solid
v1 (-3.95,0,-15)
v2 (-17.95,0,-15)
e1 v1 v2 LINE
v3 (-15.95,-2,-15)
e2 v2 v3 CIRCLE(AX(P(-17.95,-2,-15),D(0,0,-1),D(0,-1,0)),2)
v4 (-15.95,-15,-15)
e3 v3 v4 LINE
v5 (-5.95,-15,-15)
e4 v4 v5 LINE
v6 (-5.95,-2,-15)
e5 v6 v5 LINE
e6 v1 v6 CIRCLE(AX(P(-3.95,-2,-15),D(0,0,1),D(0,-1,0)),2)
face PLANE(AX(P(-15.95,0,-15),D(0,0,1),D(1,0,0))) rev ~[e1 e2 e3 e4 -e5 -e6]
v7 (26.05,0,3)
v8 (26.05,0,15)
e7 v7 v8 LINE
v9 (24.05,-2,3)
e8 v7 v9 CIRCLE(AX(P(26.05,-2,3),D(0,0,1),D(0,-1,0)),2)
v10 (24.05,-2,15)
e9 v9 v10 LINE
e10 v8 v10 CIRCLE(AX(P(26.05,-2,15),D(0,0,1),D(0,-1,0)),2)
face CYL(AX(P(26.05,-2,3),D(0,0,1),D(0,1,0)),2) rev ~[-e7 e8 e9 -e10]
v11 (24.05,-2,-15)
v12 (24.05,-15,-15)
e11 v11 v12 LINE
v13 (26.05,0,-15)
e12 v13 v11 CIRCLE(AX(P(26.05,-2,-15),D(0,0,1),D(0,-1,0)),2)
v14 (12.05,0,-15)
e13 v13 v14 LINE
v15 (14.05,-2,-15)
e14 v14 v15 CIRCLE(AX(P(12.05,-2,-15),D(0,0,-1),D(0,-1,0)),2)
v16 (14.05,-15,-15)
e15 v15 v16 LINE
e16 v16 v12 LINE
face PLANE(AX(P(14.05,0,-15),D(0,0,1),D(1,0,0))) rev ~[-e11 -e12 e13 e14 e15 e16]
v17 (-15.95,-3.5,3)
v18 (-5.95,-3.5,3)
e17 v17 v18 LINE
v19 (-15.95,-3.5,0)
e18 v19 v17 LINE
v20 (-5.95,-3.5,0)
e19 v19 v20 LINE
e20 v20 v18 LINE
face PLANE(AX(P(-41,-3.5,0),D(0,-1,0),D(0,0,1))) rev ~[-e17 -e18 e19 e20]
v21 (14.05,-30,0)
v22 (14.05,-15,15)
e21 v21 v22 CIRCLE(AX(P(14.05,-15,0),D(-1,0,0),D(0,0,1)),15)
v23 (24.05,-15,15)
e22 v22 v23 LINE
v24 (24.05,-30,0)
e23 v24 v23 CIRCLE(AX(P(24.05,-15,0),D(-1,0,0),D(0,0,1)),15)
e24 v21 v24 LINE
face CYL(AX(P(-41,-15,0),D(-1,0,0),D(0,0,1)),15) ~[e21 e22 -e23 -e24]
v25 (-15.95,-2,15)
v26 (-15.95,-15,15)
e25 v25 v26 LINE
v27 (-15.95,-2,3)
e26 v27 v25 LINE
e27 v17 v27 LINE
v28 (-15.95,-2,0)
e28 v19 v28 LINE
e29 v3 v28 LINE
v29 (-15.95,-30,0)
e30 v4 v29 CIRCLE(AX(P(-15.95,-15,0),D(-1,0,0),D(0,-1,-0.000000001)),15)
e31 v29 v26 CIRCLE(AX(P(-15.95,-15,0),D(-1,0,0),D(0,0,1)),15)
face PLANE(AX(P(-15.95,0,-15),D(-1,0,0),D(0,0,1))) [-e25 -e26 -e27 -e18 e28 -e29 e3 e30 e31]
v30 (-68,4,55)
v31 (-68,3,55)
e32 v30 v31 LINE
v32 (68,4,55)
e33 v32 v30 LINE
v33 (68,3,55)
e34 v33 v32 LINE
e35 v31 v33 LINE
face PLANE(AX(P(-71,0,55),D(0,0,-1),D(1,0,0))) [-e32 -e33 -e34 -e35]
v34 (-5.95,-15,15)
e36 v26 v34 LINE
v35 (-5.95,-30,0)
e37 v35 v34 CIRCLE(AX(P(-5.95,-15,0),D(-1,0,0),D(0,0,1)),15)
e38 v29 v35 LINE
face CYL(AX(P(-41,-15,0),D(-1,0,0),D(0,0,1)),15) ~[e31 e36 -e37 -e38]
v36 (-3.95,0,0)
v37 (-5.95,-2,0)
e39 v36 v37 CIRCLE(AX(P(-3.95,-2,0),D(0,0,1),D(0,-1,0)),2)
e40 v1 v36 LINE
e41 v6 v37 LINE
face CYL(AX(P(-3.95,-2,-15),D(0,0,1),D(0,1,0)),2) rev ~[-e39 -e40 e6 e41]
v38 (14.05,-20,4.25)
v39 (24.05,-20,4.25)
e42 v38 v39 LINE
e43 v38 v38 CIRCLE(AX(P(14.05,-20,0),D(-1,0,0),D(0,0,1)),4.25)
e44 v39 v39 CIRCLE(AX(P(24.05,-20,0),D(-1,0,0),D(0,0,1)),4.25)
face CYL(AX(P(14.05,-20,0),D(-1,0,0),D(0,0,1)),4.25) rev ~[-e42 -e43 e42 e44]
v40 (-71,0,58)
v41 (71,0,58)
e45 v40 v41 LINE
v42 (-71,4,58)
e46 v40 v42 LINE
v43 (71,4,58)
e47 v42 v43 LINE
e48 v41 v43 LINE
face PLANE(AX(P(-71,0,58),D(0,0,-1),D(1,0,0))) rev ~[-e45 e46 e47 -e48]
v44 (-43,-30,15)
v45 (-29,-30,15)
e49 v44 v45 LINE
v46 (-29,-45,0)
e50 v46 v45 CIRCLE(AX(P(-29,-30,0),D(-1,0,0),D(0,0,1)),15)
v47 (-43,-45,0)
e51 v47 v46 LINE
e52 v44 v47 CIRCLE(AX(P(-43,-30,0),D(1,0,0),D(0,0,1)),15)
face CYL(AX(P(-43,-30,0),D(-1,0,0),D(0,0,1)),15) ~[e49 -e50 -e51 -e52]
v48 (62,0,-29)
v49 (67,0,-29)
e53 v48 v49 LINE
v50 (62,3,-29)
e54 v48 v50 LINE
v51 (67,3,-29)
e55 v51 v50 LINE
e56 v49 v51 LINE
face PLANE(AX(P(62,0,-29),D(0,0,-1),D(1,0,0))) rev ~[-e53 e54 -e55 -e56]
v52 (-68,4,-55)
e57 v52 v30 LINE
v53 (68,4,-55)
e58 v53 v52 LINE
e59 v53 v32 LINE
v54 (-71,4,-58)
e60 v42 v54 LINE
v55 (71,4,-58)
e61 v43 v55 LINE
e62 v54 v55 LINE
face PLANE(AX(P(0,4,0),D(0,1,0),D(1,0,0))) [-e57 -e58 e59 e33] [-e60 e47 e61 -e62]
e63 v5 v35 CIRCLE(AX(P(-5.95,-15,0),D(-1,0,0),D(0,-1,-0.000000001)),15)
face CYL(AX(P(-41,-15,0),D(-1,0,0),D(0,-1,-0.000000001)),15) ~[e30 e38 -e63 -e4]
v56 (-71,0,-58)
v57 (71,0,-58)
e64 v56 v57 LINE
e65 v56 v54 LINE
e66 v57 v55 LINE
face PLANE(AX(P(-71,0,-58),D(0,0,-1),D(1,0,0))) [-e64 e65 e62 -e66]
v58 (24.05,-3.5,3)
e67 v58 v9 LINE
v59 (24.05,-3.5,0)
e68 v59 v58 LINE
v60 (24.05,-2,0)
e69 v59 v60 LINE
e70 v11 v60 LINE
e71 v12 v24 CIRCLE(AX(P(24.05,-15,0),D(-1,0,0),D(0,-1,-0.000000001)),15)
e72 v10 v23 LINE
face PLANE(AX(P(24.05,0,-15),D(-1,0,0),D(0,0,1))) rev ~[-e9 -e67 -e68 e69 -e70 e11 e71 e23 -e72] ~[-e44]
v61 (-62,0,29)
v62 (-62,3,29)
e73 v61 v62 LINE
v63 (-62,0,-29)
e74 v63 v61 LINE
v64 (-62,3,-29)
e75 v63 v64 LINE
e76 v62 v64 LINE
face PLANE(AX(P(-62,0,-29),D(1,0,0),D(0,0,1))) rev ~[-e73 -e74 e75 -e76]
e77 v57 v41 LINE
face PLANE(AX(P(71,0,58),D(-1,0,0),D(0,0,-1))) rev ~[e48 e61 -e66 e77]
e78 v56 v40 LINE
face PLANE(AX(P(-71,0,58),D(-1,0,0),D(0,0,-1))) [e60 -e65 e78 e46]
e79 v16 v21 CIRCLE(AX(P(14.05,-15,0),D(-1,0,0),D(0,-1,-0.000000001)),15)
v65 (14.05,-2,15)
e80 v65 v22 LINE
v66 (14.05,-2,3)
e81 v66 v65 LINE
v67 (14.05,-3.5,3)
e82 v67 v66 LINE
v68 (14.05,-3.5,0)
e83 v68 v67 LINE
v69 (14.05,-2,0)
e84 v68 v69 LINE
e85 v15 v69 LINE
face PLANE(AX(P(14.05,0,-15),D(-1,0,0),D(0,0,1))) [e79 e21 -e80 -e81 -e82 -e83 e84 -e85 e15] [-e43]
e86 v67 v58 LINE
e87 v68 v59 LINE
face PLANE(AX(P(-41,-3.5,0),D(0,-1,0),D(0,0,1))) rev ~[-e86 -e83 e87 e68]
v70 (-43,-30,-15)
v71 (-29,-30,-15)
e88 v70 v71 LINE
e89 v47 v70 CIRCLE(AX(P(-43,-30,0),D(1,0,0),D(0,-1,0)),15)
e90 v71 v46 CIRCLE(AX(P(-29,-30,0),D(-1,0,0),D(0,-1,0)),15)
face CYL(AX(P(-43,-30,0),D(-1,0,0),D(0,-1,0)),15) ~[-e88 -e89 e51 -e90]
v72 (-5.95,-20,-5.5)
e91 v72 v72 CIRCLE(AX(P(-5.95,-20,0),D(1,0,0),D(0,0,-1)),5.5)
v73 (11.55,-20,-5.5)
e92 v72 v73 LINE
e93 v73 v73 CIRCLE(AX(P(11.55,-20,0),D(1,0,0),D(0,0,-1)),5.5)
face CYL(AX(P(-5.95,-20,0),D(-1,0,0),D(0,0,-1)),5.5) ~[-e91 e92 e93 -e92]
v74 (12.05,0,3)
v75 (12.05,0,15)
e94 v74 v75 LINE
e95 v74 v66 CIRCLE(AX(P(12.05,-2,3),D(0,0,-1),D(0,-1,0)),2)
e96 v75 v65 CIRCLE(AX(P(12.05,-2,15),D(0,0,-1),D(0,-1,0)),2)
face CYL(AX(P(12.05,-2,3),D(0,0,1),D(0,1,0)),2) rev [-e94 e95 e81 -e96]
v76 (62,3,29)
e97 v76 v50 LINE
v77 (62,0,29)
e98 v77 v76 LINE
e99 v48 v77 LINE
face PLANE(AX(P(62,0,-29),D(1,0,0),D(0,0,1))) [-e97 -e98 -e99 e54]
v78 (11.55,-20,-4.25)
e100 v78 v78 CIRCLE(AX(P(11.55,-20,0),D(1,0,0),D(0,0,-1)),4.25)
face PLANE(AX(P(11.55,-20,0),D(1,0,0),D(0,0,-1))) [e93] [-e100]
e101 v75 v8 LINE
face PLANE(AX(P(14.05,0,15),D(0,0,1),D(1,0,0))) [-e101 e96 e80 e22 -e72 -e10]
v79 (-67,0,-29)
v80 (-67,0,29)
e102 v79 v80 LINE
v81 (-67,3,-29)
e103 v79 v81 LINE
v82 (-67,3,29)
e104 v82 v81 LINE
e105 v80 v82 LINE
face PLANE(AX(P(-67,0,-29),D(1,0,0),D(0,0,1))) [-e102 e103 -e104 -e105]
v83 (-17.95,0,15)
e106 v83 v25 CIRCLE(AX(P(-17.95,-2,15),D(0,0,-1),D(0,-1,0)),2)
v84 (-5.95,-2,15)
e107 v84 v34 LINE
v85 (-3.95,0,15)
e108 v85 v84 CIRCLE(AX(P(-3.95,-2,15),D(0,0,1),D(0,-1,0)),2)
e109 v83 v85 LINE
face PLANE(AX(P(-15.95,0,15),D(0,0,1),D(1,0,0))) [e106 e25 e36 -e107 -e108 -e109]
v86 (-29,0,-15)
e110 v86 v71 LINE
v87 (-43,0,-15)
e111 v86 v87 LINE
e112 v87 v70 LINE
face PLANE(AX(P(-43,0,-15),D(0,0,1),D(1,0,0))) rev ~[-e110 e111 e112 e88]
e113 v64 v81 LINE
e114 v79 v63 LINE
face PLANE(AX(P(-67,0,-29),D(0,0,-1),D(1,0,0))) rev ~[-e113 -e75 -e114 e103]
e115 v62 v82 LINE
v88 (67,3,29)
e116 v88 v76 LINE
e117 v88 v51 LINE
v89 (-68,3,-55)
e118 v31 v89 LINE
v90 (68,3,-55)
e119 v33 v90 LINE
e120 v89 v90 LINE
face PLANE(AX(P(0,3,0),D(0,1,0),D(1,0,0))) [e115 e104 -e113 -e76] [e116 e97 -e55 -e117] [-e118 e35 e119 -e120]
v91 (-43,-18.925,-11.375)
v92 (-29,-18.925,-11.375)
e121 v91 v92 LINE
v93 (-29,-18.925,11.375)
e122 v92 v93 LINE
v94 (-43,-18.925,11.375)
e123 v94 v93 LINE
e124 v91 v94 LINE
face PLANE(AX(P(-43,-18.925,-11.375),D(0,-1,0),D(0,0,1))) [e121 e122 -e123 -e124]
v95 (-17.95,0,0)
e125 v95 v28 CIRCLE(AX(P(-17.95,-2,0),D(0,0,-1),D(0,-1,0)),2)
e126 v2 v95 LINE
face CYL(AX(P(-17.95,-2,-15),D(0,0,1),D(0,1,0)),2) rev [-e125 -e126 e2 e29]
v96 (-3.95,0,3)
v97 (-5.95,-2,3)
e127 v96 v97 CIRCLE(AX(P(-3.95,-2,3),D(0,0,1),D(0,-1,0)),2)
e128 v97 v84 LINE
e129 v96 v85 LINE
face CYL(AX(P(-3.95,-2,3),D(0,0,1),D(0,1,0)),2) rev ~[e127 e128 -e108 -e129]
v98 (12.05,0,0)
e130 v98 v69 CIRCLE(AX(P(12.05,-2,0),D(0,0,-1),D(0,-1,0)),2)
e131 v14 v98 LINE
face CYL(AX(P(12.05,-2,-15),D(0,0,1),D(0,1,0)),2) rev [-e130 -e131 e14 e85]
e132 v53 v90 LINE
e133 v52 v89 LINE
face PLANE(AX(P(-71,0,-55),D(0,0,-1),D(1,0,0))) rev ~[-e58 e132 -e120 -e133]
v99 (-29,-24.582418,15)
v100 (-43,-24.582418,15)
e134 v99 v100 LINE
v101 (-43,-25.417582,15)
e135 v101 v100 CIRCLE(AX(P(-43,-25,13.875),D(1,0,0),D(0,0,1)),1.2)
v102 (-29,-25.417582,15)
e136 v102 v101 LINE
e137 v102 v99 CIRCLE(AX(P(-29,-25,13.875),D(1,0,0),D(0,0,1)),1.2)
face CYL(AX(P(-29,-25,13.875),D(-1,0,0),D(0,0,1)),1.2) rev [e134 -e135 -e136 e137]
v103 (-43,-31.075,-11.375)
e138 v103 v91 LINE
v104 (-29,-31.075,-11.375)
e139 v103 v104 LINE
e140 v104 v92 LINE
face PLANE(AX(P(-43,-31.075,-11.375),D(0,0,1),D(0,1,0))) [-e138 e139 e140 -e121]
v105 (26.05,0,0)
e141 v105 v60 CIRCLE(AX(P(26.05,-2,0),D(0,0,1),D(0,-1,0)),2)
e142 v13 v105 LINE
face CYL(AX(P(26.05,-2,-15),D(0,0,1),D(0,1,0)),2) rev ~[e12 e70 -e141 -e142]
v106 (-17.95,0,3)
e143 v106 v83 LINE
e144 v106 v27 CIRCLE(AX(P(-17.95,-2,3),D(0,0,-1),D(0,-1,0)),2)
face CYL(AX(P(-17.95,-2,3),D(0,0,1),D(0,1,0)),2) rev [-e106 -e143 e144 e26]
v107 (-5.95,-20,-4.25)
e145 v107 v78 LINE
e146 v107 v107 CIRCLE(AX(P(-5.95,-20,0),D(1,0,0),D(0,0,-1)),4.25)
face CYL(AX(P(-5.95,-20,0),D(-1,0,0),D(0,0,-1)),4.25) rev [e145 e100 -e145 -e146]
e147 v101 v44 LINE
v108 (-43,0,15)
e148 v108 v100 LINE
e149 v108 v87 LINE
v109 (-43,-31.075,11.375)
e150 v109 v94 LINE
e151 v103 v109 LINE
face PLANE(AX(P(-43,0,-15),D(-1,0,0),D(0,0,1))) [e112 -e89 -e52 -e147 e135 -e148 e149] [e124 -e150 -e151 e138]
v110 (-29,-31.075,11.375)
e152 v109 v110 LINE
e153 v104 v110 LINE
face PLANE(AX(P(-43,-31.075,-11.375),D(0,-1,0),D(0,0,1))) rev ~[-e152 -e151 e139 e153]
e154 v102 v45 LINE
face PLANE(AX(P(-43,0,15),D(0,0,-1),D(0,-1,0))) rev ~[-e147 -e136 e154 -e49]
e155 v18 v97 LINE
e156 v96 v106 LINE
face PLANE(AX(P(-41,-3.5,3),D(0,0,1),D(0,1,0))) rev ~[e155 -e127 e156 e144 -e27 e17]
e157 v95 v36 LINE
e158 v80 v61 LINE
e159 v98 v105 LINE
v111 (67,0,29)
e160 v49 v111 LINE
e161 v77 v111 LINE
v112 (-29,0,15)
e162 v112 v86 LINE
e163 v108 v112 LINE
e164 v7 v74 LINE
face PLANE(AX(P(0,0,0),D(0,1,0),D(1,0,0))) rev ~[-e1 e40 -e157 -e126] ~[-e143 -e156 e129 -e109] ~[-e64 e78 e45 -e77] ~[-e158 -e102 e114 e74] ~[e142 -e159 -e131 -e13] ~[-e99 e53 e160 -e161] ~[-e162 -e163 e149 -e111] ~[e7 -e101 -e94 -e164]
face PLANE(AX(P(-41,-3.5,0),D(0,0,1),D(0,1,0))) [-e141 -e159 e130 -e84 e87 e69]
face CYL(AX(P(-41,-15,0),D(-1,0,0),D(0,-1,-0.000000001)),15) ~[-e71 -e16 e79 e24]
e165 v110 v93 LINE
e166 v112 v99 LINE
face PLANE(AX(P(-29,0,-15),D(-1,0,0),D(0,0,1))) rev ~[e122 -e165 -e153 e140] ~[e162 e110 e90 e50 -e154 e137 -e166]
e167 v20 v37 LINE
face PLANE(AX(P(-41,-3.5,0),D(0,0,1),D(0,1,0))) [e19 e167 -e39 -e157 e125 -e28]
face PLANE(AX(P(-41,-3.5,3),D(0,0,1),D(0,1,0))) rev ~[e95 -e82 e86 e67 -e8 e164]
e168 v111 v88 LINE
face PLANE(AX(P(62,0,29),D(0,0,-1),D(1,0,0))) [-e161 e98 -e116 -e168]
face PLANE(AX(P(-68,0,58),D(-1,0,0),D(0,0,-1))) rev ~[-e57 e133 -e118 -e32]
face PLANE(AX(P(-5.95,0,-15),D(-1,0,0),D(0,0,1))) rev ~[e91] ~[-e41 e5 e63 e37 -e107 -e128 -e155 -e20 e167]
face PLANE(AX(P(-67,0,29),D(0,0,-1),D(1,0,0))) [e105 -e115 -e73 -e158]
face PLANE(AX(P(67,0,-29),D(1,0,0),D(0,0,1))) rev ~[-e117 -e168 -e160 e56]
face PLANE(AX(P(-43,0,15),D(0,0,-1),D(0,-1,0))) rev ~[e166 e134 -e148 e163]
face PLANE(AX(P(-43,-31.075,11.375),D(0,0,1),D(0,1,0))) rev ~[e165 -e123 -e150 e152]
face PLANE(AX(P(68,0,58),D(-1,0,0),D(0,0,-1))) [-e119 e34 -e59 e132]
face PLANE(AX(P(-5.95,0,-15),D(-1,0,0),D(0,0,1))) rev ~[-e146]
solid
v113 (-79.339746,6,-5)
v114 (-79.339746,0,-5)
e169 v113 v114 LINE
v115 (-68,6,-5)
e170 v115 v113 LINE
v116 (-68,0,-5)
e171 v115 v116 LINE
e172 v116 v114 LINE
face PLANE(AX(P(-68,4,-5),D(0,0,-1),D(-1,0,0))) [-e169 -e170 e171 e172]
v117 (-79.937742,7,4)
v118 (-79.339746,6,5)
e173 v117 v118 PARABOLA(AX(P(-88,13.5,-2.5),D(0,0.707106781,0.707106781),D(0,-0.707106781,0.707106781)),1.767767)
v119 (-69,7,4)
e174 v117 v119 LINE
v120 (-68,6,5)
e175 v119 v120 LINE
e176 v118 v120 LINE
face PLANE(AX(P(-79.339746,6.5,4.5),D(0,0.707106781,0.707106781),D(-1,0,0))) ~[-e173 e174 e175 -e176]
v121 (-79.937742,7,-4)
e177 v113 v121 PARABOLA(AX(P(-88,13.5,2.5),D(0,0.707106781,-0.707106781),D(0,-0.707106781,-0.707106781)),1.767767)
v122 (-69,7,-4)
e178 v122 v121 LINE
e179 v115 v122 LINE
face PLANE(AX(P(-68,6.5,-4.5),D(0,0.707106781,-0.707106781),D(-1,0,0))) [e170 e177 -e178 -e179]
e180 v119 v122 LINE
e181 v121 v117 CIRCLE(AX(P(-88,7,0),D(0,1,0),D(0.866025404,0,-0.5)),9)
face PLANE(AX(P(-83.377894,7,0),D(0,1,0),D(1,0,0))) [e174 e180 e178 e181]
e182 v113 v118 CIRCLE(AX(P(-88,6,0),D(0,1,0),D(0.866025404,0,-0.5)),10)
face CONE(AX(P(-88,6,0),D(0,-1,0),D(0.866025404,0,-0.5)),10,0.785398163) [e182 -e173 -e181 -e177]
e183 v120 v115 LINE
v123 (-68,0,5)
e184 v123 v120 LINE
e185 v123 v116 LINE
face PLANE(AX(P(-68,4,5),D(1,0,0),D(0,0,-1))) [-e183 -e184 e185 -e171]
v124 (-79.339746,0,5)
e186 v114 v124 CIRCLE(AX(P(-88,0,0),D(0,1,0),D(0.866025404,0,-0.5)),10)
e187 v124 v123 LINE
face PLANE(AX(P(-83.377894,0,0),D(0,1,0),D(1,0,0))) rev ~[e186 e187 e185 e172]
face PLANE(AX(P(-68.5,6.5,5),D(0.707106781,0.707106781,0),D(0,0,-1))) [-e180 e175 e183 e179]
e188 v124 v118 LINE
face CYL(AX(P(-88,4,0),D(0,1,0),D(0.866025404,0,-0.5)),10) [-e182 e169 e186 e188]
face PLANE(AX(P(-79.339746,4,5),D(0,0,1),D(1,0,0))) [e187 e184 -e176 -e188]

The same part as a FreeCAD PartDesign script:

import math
import FreeCAD as App
import Part
import Sketcher
from FreeCAD import Vector
Q = App.Units.Quantity


def edges_at(feature, points):
    """Names of the edges that pass closest to the given points."""
    edges = feature.Shape.Edges
    near = lambda p: min(range(len(edges)), key=lambda i: edges[i].distToShape(Part.Vertex(*p))[0])
    return sorted({f"Edge{near(p) + 1}" for p in points})


def faces_at(feature, points):
    """Names of the faces that lie closest to the given points."""
    faces = feature.Shape.Faces
    near = lambda p: min(range(len(faces)), key=lambda i: faces[i].distToShape(Part.Vertex(*p))[0])
    return sorted({f"Face{near(p) + 1}" for p in points})

doc = App.newDocument("Part")
body = doc.addObject("PartDesign::Body", "Body")

sketch1 = body.newObject("Sketcher::SketchObject", "Sketch")
sketch1.AttachmentSupport = (doc.getObject("XZ_Plane"), [""])
sketch1.MapMode = "FlatFace"
sketch1.addGeometry(Part.LineSegment(Vector(-71, -58, 0), Vector(-71, 58, 0)), False)
sketch1.addGeometry(Part.LineSegment(Vector(-71, 58, 0), Vector(71, 58, 0)), False)
sketch1.addGeometry(Part.LineSegment(Vector(71, 58, 0), Vector(71, -58, 0)), False)
sketch1.addGeometry(Part.LineSegment(Vector(71, -58, 0), Vector(-71, -58, 0)), False)
sketch1.addConstraint(Sketcher.Constraint("Coincident", 0, 2, 1, 1))
sketch1.addConstraint(Sketcher.Constraint("Coincident", 1, 2, 2, 1))
sketch1.addConstraint(Sketcher.Constraint("Coincident", 2, 2, 3, 1))
sketch1.addConstraint(Sketcher.Constraint("Coincident", 3, 2, 0, 1))
sketch1.addConstraint(Sketcher.Constraint("Vertical", 0))
sketch1.addConstraint(Sketcher.Constraint("Horizontal", 1))
sketch1.addConstraint(Sketcher.Constraint("Vertical", 2))
sketch1.addConstraint(Sketcher.Constraint("Horizontal", 3))
sketch1.addConstraint(Sketcher.Constraint("Symmetric", 0, 2, 2, 2, -1, 1))
sketch1.addConstraint(Sketcher.Constraint("DistanceX", 1, 1, 1, 2, 142.0))
sketch1.addConstraint(Sketcher.Constraint("DistanceY", 0, 1, 0, 2, 116.0))
pad1 = body.newObject("PartDesign::Pad", "Pad")
pad1.Profile = sketch1
pad1.Length = 4
pad1.Reversed = True
doc.recompute()

thickness = body.newObject("PartDesign::Thickness", "Thickness")
thickness.Base = (pad1, faces_at(pad1, [(0, 4, 0)]))
thickness.Value = 3
thickness.Reversed = True
thickness.Join = "Intersection"

sketch2 = body.newObject("Sketcher::SketchObject", "Sketch001")
sketch2.AttachmentSupport = (doc.getObject("XZ_Plane"), [""])
sketch2.MapMode = "FlatFace"
sketch2.addGeometry(Part.LineSegment(Vector(-41, 15, 0), Vector(-41, -15, 0)), False)
sketch2.addGeometry(Part.LineSegment(Vector(-41, -15, 0), Vector(-31, -15, 0)), False)
sketch2.addGeometry(Part.LineSegment(Vector(-31, -15, 0), Vector(-31, 15, 0)), False)
sketch2.addGeometry(Part.LineSegment(Vector(-31, 15, 0), Vector(-41, 15, 0)), False)
sketch2.addGeometry(Part.LineSegment(Vector(14, 15, 0), Vector(14, -15, 0)), False)
sketch2.addGeometry(Part.LineSegment(Vector(14, -15, 0), Vector(24, -15, 0)), False)
sketch2.addGeometry(Part.LineSegment(Vector(24, -15, 0), Vector(24, 15, 0)), False)
sketch2.addGeometry(Part.LineSegment(Vector(24, 15, 0), Vector(14, 15, 0)), False)
sketch2.addGeometry(Part.LineSegment(Vector(-16, 15, 0), Vector(-16, -15, 0)), False)
sketch2.addGeometry(Part.LineSegment(Vector(-16, -15, 0), Vector(-6, -15, 0)), False)
sketch2.addGeometry(Part.LineSegment(Vector(-6, -15, 0), Vector(-6, 15, 0)), False)
sketch2.addGeometry(Part.LineSegment(Vector(-6, 15, 0), Vector(-16, 15, 0)), False)
sketch2.addConstraint(Sketcher.Constraint("Coincident", 0, 2, 1, 1))
sketch2.addConstraint(Sketcher.Constraint("Coincident", 1, 2, 2, 1))
sketch2.addConstraint(Sketcher.Constraint("Coincident", 2, 2, 3, 1))
sketch2.addConstraint(Sketcher.Constraint("Coincident", 3, 2, 0, 1))
sketch2.addConstraint(Sketcher.Constraint("Coincident", 4, 2, 5, 1))
sketch2.addConstraint(Sketcher.Constraint("Coincident", 5, 2, 6, 1))
sketch2.addConstraint(Sketcher.Constraint("Coincident", 6, 2, 7, 1))
sketch2.addConstraint(Sketcher.Constraint("Coincident", 7, 2, 4, 1))
sketch2.addConstraint(Sketcher.Constraint("Coincident", 8, 2, 9, 1))
sketch2.addConstraint(Sketcher.Constraint("Coincident", 9, 2, 10, 1))
sketch2.addConstraint(Sketcher.Constraint("Coincident", 10, 2, 11, 1))
sketch2.addConstraint(Sketcher.Constraint("Coincident", 11, 2, 8, 1))
sketch2.addConstraint(Sketcher.Constraint("Vertical", 0))
sketch2.addConstraint(Sketcher.Constraint("Horizontal", 1))
sketch2.addConstraint(Sketcher.Constraint("Vertical", 2))
sketch2.addConstraint(Sketcher.Constraint("Horizontal", 3))
sketch2.addConstraint(Sketcher.Constraint("Vertical", 4))
sketch2.addConstraint(Sketcher.Constraint("Horizontal", 5))
sketch2.addConstraint(Sketcher.Constraint("Vertical", 6))
sketch2.addConstraint(Sketcher.Constraint("Horizontal", 7))
sketch2.addConstraint(Sketcher.Constraint("Vertical", 8))
sketch2.addConstraint(Sketcher.Constraint("Horizontal", 9))
sketch2.addConstraint(Sketcher.Constraint("Vertical", 10))
sketch2.addConstraint(Sketcher.Constraint("Horizontal", 11))
sketch2.addConstraint(Sketcher.Constraint("Horizontal", 1, 2, 4, 2))
sketch2.addConstraint(Sketcher.Constraint("Horizontal", 3, 2, 6, 2))
sketch2.addConstraint(Sketcher.Constraint("Horizontal", 5, 2, 8, 2))
sketch2.addConstraint(Sketcher.Constraint("Horizontal", 7, 2, 10, 2))
sketch2.addConstraint(Sketcher.Constraint("Equal", 3, 5))
sketch2.addConstraint(Sketcher.Constraint("Equal", 7, 9))
sketch2.addConstraint(Sketcher.Constraint("DistanceX", 1, 1, 1, 2, 10.0))
sketch2.addConstraint(Sketcher.Constraint("DistanceY", 0, 2, 0, 1, 30.0))
sketch2.addConstraint(Sketcher.Constraint("DistanceX", 0, 2, -1, 1, 41.0))
sketch2.addConstraint(Sketcher.Constraint("DistanceY", 0, 2, -1, 1, 15.0))
sketch2.addConstraint(Sketcher.Constraint("DistanceX", 8, 2, 4, 2, 30.0))
sketch2.addConstraint(Sketcher.Constraint("DistanceX", -1, 1, 4, 2, 14.05))
pad2 = body.newObject("PartDesign::Pad", "Pad001")
pad2.Profile = sketch2
pad2.Length = 30

sketch3 = body.newObject("Sketcher::SketchObject", "Sketch002")
sketch3.AttachmentSupport = (doc.getObject("YZ_Plane"), [""])
sketch3.MapMode = "FlatFace"
sketch3.AttachmentOffset = App.Placement(Vector(0, 0, -41), App.Rotation())
sketch3.addGeometry(Part.ArcOfCircle(Part.Circle(Vector(-15, 0, 0), Vector(0, 0, 1), 15), math.radians(-180), math.radians(-90)), False)
sketch3.addGeometry(Part.LineSegment(Vector(-15, -15, 0), Vector(-30, -15, 0)), False)
sketch3.addGeometry(Part.LineSegment(Vector(-30, -15, 0), Vector(-30, 0, 0)), False)
sketch3.addGeometry(Part.ArcOfCircle(Part.Circle(Vector(-15, 0, 0), Vector(0, 0, 1), 15), math.radians(90), math.radians(180)), False)
sketch3.addGeometry(Part.LineSegment(Vector(-30, 0, 0), Vector(-30, 15, 0)), False)
sketch3.addGeometry(Part.LineSegment(Vector(-30, 15, 0), Vector(-15, 15, 0)), False)
sketch3.addConstraint(Sketcher.Constraint("Tangent", 0, 2, 1, 1))
sketch3.addConstraint(Sketcher.Constraint("Coincident", 1, 2, 2, 1))
sketch3.addConstraint(Sketcher.Constraint("Tangent", 2, 2, 0, 1))
sketch3.addConstraint(Sketcher.Constraint("Tangent", 3, 2, 4, 1))
sketch3.addConstraint(Sketcher.Constraint("Coincident", 4, 2, 5, 1))
sketch3.addConstraint(Sketcher.Constraint("Tangent", 5, 2, 3, 1))
sketch3.addConstraint(Sketcher.Constraint("Horizontal", 1))
sketch3.addConstraint(Sketcher.Constraint("Vertical", 2))
sketch3.addConstraint(Sketcher.Constraint("Vertical", 4))
sketch3.addConstraint(Sketcher.Constraint("Horizontal", 5))
sketch3.addConstraint(Sketcher.Constraint("Coincident", 3, 3, 0, 3))
sketch3.addConstraint(Sketcher.Constraint("Equal", 0, 3))
sketch3.addConstraint(Sketcher.Constraint("PointOnObject", 0, 3, -1))
sketch3.addConstraint(Sketcher.Constraint("Radius", 0, 15.0))
sketch3.addConstraint(Sketcher.Constraint("DistanceX", 0, 3, -1, 1, 15.0))
pocket1 = body.newObject("PartDesign::Pocket", "Pocket")
pocket1.Profile = sketch3
pocket1.Type = "ThroughAll"
pocket1.Midplane = True

sketch4 = body.newObject("Sketcher::SketchObject", "Sketch003")
sketch4.AttachmentSupport = (doc.getObject("YZ_Plane"), [""])
sketch4.MapMode = "FlatFace"
sketch4.AttachmentOffset = App.Placement(Vector(0, 0, -41), App.Rotation())
sketch4.addGeometry(Part.LineSegment(Vector(0, 0, 0), Vector(-3.5, 0, 0)), False)
sketch4.addGeometry(Part.LineSegment(Vector(-3.5, 0, 0), Vector(-3.5, 3, 0)), False)
sketch4.addGeometry(Part.LineSegment(Vector(-3.5, 3, 0), Vector(0, 3, 0)), False)
sketch4.addGeometry(Part.LineSegment(Vector(0, 3, 0), Vector(0, 0, 0)), False)
sketch4.addConstraint(Sketcher.Constraint("Coincident", 0, 2, 1, 1))
sketch4.addConstraint(Sketcher.Constraint("Coincident", 1, 2, 2, 1))
sketch4.addConstraint(Sketcher.Constraint("Coincident", 2, 2, 3, 1))
sketch4.addConstraint(Sketcher.Constraint("Coincident", 3, 2, 0, 1))
sketch4.addConstraint(Sketcher.Constraint("Horizontal", 0))
sketch4.addConstraint(Sketcher.Constraint("Vertical", 1))
sketch4.addConstraint(Sketcher.Constraint("Horizontal", 2))
sketch4.addConstraint(Sketcher.Constraint("Vertical", 3))
sketch4.addConstraint(Sketcher.Constraint("Coincident", 3, 2, -1, 1))
sketch4.addConstraint(Sketcher.Constraint("DistanceY", 1, 1, 1, 2, 3.0))
sketch4.addConstraint(Sketcher.Constraint("DistanceX", 0, 2, 0, 1, 3.5))
pocket2 = body.newObject("PartDesign::Pocket", "Pocket001")
pocket2.Profile = sketch4
pocket2.Type = "ThroughAll"
pocket2.Midplane = True
doc.recompute()

fillet = body.newObject("PartDesign::Fillet", "Fillet")
fillet.Base = (pocket2, edges_at(pocket2, [
    (-31, 0, 9),
    (-41, 0, -7.5),
    (24.05, 0, 9),
    (14.05, 0, -7.5),
    (-5.95, 0, 9),
    (-15.95, 0, -7.5),
    (-31, 0, -7.5),
    (-41, 0, 9),
    (24.05, 0, -7.5),
    (14.05, 0, 9),
    (-5.95, 0, -7.5),
    (-15.95, 0, 9),
]))
fillet.Radius = 2

sketch5 = body.newObject("Sketcher::SketchObject", "Sketch004")
sketch5.AttachmentSupport = (doc.getObject("YZ_Plane"), [""])
sketch5.MapMode = "FlatFace"
sketch5.AttachmentOffset = App.Placement(Vector(0, 0, -41), App.Rotation())
sketch5.addGeometry(Part.LineSegment(Vector(-9, -11, 0), Vector(-21, -11, 0)), False)
sketch5.addGeometry(Part.LineSegment(Vector(-21, -11, 0), Vector(-21, 11, 0)), False)
sketch5.addGeometry(Part.LineSegment(Vector(-21, 11, 0), Vector(-9, 11, 0)), False)
sketch5.addGeometry(Part.LineSegment(Vector(-9, 11, 0), Vector(-9, -11, 0)), False)
sketch5.addConstraint(Sketcher.Constraint("Coincident", 0, 2, 1, 1))
sketch5.addConstraint(Sketcher.Constraint("Coincident", 1, 2, 2, 1))
sketch5.addConstraint(Sketcher.Constraint("Coincident", 2, 2, 3, 1))
sketch5.addConstraint(Sketcher.Constraint("Coincident", 3, 2, 0, 1))
sketch5.addConstraint(Sketcher.Constraint("Horizontal", 0))
sketch5.addConstraint(Sketcher.Constraint("Vertical", 1))
sketch5.addConstraint(Sketcher.Constraint("Horizontal", 2))
sketch5.addConstraint(Sketcher.Constraint("Vertical", 3))
sketch5.addConstraint(Sketcher.Constraint("DistanceX", 0, 2, 0, 1, 12.1))
sketch5.addConstraint(Sketcher.Constraint("DistanceY", 1, 1, 1, 2, 22.5))
sketch5.addConstraint(Sketcher.Constraint("DistanceX", 0, 2, -1, 1, 21.05))
sketch5.addConstraint(Sketcher.Constraint("DistanceY", 0, 2, -1, 1, 11.25))
pocket3 = body.newObject("PartDesign::Pocket", "Pocket002")
pocket3.Profile = sketch5
pocket3.Type = "TwoLengths"
pocket3.Length = 31
pocket3.Length2 = 10

sketch6 = body.newObject("Sketcher::SketchObject", "Sketch005")
sketch6.AttachmentSupport = (doc.getObject("YZ_Plane"), [""])
sketch6.MapMode = "FlatFace"
sketch6.AttachmentOffset = App.Placement(Vector(0, 0, -5.95), App.Rotation())
sketch6.addGeometry(Part.Circle(Vector(-20, 0, 0), Vector(0, 0, 1), 5.5), False)
sketch6.addGeometry(Part.Circle(Vector(-20, 0, 0), Vector(0, 0, 1), 4.2), False)
sketch6.addConstraint(Sketcher.Constraint("Coincident", 1, 3, 0, 3))
sketch6.addConstraint(Sketcher.Constraint("PointOnObject", 0, 3, -1))
sketch6.addConstraint(Sketcher.Constraint("Diameter", 0, 11.0))
sketch6.addConstraint(Sketcher.Constraint("Diameter", 1, 8.5))
sketch6.addConstraint(Sketcher.Constraint("DistanceX", 0, 3, -1, 1, 20.0))
pad3 = body.newObject("PartDesign::Pad", "Pad002")
pad3.Profile = sketch6
pad3.Length = 17.5

sketch7 = body.newObject("Sketcher::SketchObject", "Sketch006")
sketch7.AttachmentSupport = (doc.getObject("YZ_Plane"), [""])
sketch7.MapMode = "FlatFace"
sketch7.AttachmentOffset = App.Placement(Vector(0, 0, -41), App.Rotation())
sketch7.addGeometry(Part.Circle(Vector(-15, 13.8, 0), Vector(0, 0, 1), 1.1), False)
sketch7.addConstraint(Sketcher.Constraint("Diameter", 0, 2.2))
sketch7.addConstraint(Sketcher.Constraint("DistanceX", 0, 3, -1, 1, 15.0))
sketch7.addConstraint(Sketcher.Constraint("DistanceY", -1, 1, 0, 3, 13.85))
doc.recompute()
hole = body.newObject("PartDesign::Hole", "Hole")
hole.Profile = sketch7
hole.ThreadType = "None"
hole.Diameter = 2.2
hole.DepthType = "Dimension"
hole.Depth = 10
hole.DrillPoint = "Angled"
hole.DrillPointAngle = 118
hole.Reversed = True

sketch8 = body.newObject("Sketcher::SketchObject", "Sketch007")
sketch8.AttachmentSupport = (doc.getObject("XZ_Plane"), [""])
sketch8.MapMode = "FlatFace"
sketch8.addGeometry(Part.LineSegment(Vector(-43, 20, 0), Vector(-43, -15, 0)), False)
sketch8.addGeometry(Part.LineSegment(Vector(-43, -15, 0), Vector(-29, -15, 0)), False)
sketch8.addGeometry(Part.LineSegment(Vector(-29, -15, 0), Vector(-29, 20, 0)), False)
sketch8.addGeometry(Part.LineSegment(Vector(-29, 20, 0), Vector(-43, 20, 0)), False)
sketch8.addConstraint(Sketcher.Constraint("Coincident", 0, 2, 1, 1))
sketch8.addConstraint(Sketcher.Constraint("Coincident", 1, 2, 2, 1))
sketch8.addConstraint(Sketcher.Constraint("Coincident", 2, 2, 3, 1))
sketch8.addConstraint(Sketcher.Constraint("Coincident", 3, 2, 0, 1))
sketch8.addConstraint(Sketcher.Constraint("Vertical", 0))
sketch8.addConstraint(Sketcher.Constraint("Horizontal", 1))
sketch8.addConstraint(Sketcher.Constraint("Vertical", 2))
sketch8.addConstraint(Sketcher.Constraint("Horizontal", 3))
sketch8.addConstraint(Sketcher.Constraint("DistanceX", 1, 1, 1, 2, 14.0))
sketch8.addConstraint(Sketcher.Constraint("DistanceY", 0, 2, 0, 1, 35.0))
sketch8.addConstraint(Sketcher.Constraint("DistanceX", 0, 2, -1, 1, 43.0))
sketch8.addConstraint(Sketcher.Constraint("DistanceY", 0, 2, -1, 1, 15.0))
pad4 = body.newObject("PartDesign::Pad", "Pad003")
pad4.Profile = sketch8
pad4.Length = 45

sketch9 = body.newObject("Sketcher::SketchObject", "Sketch008")
sketch9.AttachmentSupport = (doc.getObject("YZ_Plane"), [""])
sketch9.MapMode = "FlatFace"
sketch9.AttachmentOffset = App.Placement(Vector(0, 0, -43), App.Rotation())
sketch9.addGeometry(Part.LineSegment(Vector(0, 15, 0), Vector(-30, 15, 0)), False)
sketch9.addGeometry(Part.ArcOfCircle(Part.Circle(Vector(-30, 0, 0), Vector(0, 0, 1), 15), math.radians(90), math.radians(180)), False)
sketch9.addGeometry(Part.LineSegment(Vector(-45, 0, 0), Vector(-45, 20, 0)), False)
sketch9.addGeometry(Part.LineSegment(Vector(-45, 20, 0), Vector(0, 20, 0)), False)
sketch9.addGeometry(Part.LineSegment(Vector(0, 20, 0), Vector(0, 15, 0)), False)
sketch9.addGeometry(Part.LineSegment(Vector(-45, -15, 0), Vector(-45, 0, 0)), False)
sketch9.addGeometry(Part.ArcOfCircle(Part.Circle(Vector(-30, 0, 0), Vector(0, 0, 1), 15), math.radians(180), math.radians(270)), False)
sketch9.addGeometry(Part.LineSegment(Vector(-30, -15, 0), Vector(-45, -15, 0)), False)
sketch9.addConstraint(Sketcher.Constraint("Tangent", 0, 2, 1, 1))
sketch9.addConstraint(Sketcher.Constraint("Tangent", 1, 2, 2, 1))
sketch9.addConstraint(Sketcher.Constraint("Coincident", 2, 2, 3, 1))
sketch9.addConstraint(Sketcher.Constraint("Coincident", 3, 2, 4, 1))
sketch9.addConstraint(Sketcher.Constraint("Coincident", 4, 2, 0, 1))
sketch9.addConstraint(Sketcher.Constraint("Tangent", 5, 2, 6, 1))
sketch9.addConstraint(Sketcher.Constraint("Tangent", 6, 2, 7, 1))
sketch9.addConstraint(Sketcher.Constraint("Coincident", 7, 2, 5, 1))
sketch9.addConstraint(Sketcher.Constraint("Horizontal", 0))
sketch9.addConstraint(Sketcher.Constraint("Vertical", 2))
sketch9.addConstraint(Sketcher.Constraint("Horizontal", 3))
sketch9.addConstraint(Sketcher.Constraint("Vertical", 4))
sketch9.addConstraint(Sketcher.Constraint("Vertical", 5))
sketch9.addConstraint(Sketcher.Constraint("Horizontal", 7))
sketch9.addConstraint(Sketcher.Constraint("Coincident", 6, 3, 1, 3))
sketch9.addConstraint(Sketcher.Constraint("Equal", 1, 6))
sketch9.addConstraint(Sketcher.Constraint("PointOnObject", 1, 3, -1))
sketch9.addConstraint(Sketcher.Constraint("PointOnObject", 3, 2, -2))
sketch9.addConstraint(Sketcher.Constraint("Radius", 1, 15.0))
sketch9.addConstraint(Sketcher.Constraint("DistanceX", 0, 2, 0, 1, 30.0))
sketch9.addConstraint(Sketcher.Constraint("DistanceY", 2, 1, 2, 2, 20.0))
pocket4 = body.newObject("PartDesign::Pocket", "Pocket003")
pocket4.Profile = sketch9
pocket4.Length = 45
pocket4.Reversed = True

sketch10 = body.newObject("Sketcher::SketchObject", "Sketch009")
sketch10.AttachmentSupport = (doc.getObject("YZ_Plane"), [""])
sketch10.MapMode = "FlatFace"
sketch10.AttachmentOffset = App.Placement(Vector(0, 0, -43), App.Rotation())
sketch10.addGeometry(Part.LineSegment(Vector(-19, -11, 0), Vector(-31, -11, 0)), False)
sketch10.addGeometry(Part.LineSegment(Vector(-31, -11, 0), Vector(-31, 11, 0)), False)
sketch10.addGeometry(Part.LineSegment(Vector(-31, 11, 0), Vector(-19, 11, 0)), False)
sketch10.addGeometry(Part.LineSegment(Vector(-19, 11, 0), Vector(-19, -11, 0)), False)
sketch10.addConstraint(Sketcher.Constraint("Coincident", 0, 2, 1, 1))
sketch10.addConstraint(Sketcher.Constraint("Coincident", 1, 2, 2, 1))
sketch10.addConstraint(Sketcher.Constraint("Coincident", 2, 2, 3, 1))
sketch10.addConstraint(Sketcher.Constraint("Coincident", 3, 2, 0, 1))
sketch10.addConstraint(Sketcher.Constraint("Horizontal", 0))
sketch10.addConstraint(Sketcher.Constraint("Vertical", 1))
sketch10.addConstraint(Sketcher.Constraint("Horizontal", 2))
sketch10.addConstraint(Sketcher.Constraint("Vertical", 3))
sketch10.addConstraint(Sketcher.Constraint("DistanceX", 0, 2, 0, 1, 12.15))
sketch10.addConstraint(Sketcher.Constraint("DistanceY", 1, 1, 1, 2, 22.75))
sketch10.addConstraint(Sketcher.Constraint("DistanceX", 0, 2, -1, 1, 31.075))
sketch10.addConstraint(Sketcher.Constraint("DistanceY", 0, 2, -1, 1, 11.375))
pocket5 = body.newObject("PartDesign::Pocket", "Pocket004")
pocket5.Profile = sketch10
pocket5.Length = 14
pocket5.Reversed = True

sketch11 = body.newObject("Sketcher::SketchObject", "Sketch010")
sketch11.AttachmentSupport = (doc.getObject("XZ_Plane"), [""])
sketch11.MapMode = "FlatFace"
sketch11.AttachmentOffset = App.Placement(Vector(0, 0, 25), App.Rotation())
sketch11.addGeometry(Part.LineSegment(Vector(-28.3, 13.9, 0), Vector(-43, 13.9, 0)), False)
sketch11.addGeometry(Part.LineSegment(Vector(-43, 13.9, 0), Vector(-43, 15.1, 0)), False)
sketch11.addGeometry(Part.LineSegment(Vector(-43, 15.1, 0), Vector(-29, 15.1, 0)), False)
sketch11.addGeometry(Part.LineSegment(Vector(-29, 15.1, 0), Vector(-28.3, 13.9, 0)), False)
sketch11.addGeometry(Part.LineSegment(Vector(-43, 13.9, 0), Vector(-28.3, 13.9, 0)), True)
sketch11.addConstraint(Sketcher.Constraint("Coincident", 0, 2, 1, 1))
sketch11.addConstraint(Sketcher.Constraint("Coincident", 1, 2, 2, 1))
sketch11.addConstraint(Sketcher.Constraint("Coincident", 2, 2, 3, 1))
sketch11.addConstraint(Sketcher.Constraint("Coincident", 3, 2, 0, 1))
sketch11.addConstraint(Sketcher.Constraint("Horizontal", 0))
sketch11.addConstraint(Sketcher.Constraint("Vertical", 1))
sketch11.addConstraint(Sketcher.Constraint("Horizontal", 2))
sketch11.addConstraint(Sketcher.Constraint("Horizontal", 4))
sketch11.addConstraint(Sketcher.Constraint("Coincident", 4, 1, 0, 2))
sketch11.addConstraint(Sketcher.Constraint("Equal", 0, 4))
sketch11.addConstraint(Sketcher.Constraint("DistanceX", 2, 1, 2, 2, 14.0))
sketch11.addConstraint(Sketcher.Constraint("Angle", 3, Q("-59 deg")))
sketch11.addConstraint(Sketcher.Constraint("DistanceY", 1, 1, 1, 2, 1.2))
sketch11.addConstraint(Sketcher.Constraint("DistanceX", 0, 2, -1, 1, 43.0))
sketch11.addConstraint(Sketcher.Constraint("DistanceY", -1, 1, 0, 2, 13.875))
groove = body.newObject("PartDesign::Groove", "Groove")
groove.Profile = sketch11
groove.ReferenceAxis = (sketch11, ["Axis0"])
groove.Angle = 360

sketch12 = body.newObject("Sketcher::SketchObject", "Sketch011")
sketch12.AttachmentSupport = (doc.getObject("YZ_Plane"), [""])
sketch12.MapMode = "FlatFace"
sketch12.AttachmentOffset = App.Placement(Vector(0, 0, 14.05), App.Rotation())
sketch12.addGeometry(Part.Circle(Vector(-20, 0, 0), Vector(0, 0, 1), 4.2), False)
sketch12.addConstraint(Sketcher.Constraint("PointOnObject", 0, 3, -1))
sketch12.addConstraint(Sketcher.Constraint("Diameter", 0, 8.5))
sketch12.addConstraint(Sketcher.Constraint("DistanceX", 0, 3, -1, 1, 20.0))
pocket6 = body.newObject("PartDesign::Pocket", "Pocket005")
pocket6.Profile = sketch12
pocket6.Type = "ThroughAll"
pocket6.Reversed = True

sketch13 = body.newObject("Sketcher::SketchObject", "Sketch012")
sketch13.AttachmentSupport = (doc.getObject("XZ_Plane"), [""])
sketch13.MapMode = "FlatFace"
sketch13.addGeometry(Part.LineSegment(Vector(-67, 29, 0), Vector(-67, -29, 0)), False)
sketch13.addGeometry(Part.LineSegment(Vector(-67, -29, 0), Vector(-62, -29, 0)), False)
sketch13.addGeometry(Part.LineSegment(Vector(-62, -29, 0), Vector(-62, 29, 0)), False)
sketch13.addGeometry(Part.LineSegment(Vector(-62, 29, 0), Vector(-67, 29, 0)), False)
sketch13.addGeometry(Part.LineSegment(Vector(62, 29, 0), Vector(62, -29, 0)), False)
sketch13.addGeometry(Part.LineSegment(Vector(62, -29, 0), Vector(67, -29, 0)), False)
sketch13.addGeometry(Part.LineSegment(Vector(67, -29, 0), Vector(67, 29, 0)), False)
sketch13.addGeometry(Part.LineSegment(Vector(67, 29, 0), Vector(62, 29, 0)), False)
sketch13.addConstraint(Sketcher.Constraint("Coincident", 0, 2, 1, 1))
sketch13.addConstraint(Sketcher.Constraint("Coincident", 1, 2, 2, 1))
sketch13.addConstraint(Sketcher.Constraint("Coincident", 2, 2, 3, 1))
sketch13.addConstraint(Sketcher.Constraint("Coincident", 3, 2, 0, 1))
sketch13.addConstraint(Sketcher.Constraint("Coincident", 4, 2, 5, 1))
sketch13.addConstraint(Sketcher.Constraint("Coincident", 5, 2, 6, 1))
sketch13.addConstraint(Sketcher.Constraint("Coincident", 6, 2, 7, 1))
sketch13.addConstraint(Sketcher.Constraint("Coincident", 7, 2, 4, 1))
sketch13.addConstraint(Sketcher.Constraint("Vertical", 0))
sketch13.addConstraint(Sketcher.Constraint("Horizontal", 1))
sketch13.addConstraint(Sketcher.Constraint("Vertical", 2))
sketch13.addConstraint(Sketcher.Constraint("Horizontal", 3))
sketch13.addConstraint(Sketcher.Constraint("Vertical", 4))
sketch13.addConstraint(Sketcher.Constraint("Horizontal", 5))
sketch13.addConstraint(Sketcher.Constraint("Vertical", 6))
sketch13.addConstraint(Sketcher.Constraint("Horizontal", 7))
sketch13.addConstraint(Sketcher.Constraint("Symmetric", 2, 2, 4, 2, -1, 1))
sketch13.addConstraint(Sketcher.Constraint("Symmetric", 0, 2, 6, 2, -1, 1))
sketch13.addConstraint(Sketcher.Constraint("Horizontal", 1, 2, 4, 2))
sketch13.addConstraint(Sketcher.Constraint("DistanceX", 1, 1, 1, 2, 5.0))
sketch13.addConstraint(Sketcher.Constraint("DistanceY", 0, 2, 0, 1, 58.0))
sketch13.addConstraint(Sketcher.Constraint("DistanceX", 0, 2, -1, 1, 67.0))
pocket7 = body.newObject("PartDesign::Pocket", "Pocket006")
pocket7.Profile = sketch13
pocket7.Type = "ThroughAll"
body2 = doc.addObject("PartDesign::Body", "Body001")

sketch14 = body2.newObject("Sketcher::SketchObject", "Sketch013")
sketch14.AttachmentSupport = (doc.getObject("XZ_Plane001"), [""])
sketch14.MapMode = "FlatFace"
sketch14.AttachmentOffset = App.Placement(Vector(0, 0, -4), App.Rotation())
sketch14.addGeometry(Part.ArcOfCircle(Part.Circle(Vector(-88, 0, 0), Vector(0, 0, 1), 10), math.radians(30), math.radians(330)), False)
sketch14.addGeometry(Part.LineSegment(Vector(-79, 5, 0), Vector(-68, 5, 0)), False)
sketch14.addGeometry(Part.LineSegment(Vector(-68, 5, 0), Vector(-68, -5, 0)), False)
sketch14.addGeometry(Part.LineSegment(Vector(-68, -5, 0), Vector(-79, -5, 0)), False)
sketch14.addConstraint(Sketcher.Constraint("Coincident", 0, 1, 1, 1))
sketch14.addConstraint(Sketcher.Constraint("Coincident", 1, 2, 2, 1))
sketch14.addConstraint(Sketcher.Constraint("Coincident", 2, 2, 3, 1))
sketch14.addConstraint(Sketcher.Constraint("Coincident", 3, 2, 0, 2))
sketch14.addConstraint(Sketcher.Constraint("Horizontal", 1))
sketch14.addConstraint(Sketcher.Constraint("Vertical", 2))
sketch14.addConstraint(Sketcher.Constraint("Horizontal", 3))
sketch14.addConstraint(Sketcher.Constraint("Symmetric", 0, 1, 3, 2, -1))
sketch14.addConstraint(Sketcher.Constraint("Radius", 0, 10.0))
sketch14.addConstraint(Sketcher.Constraint("DistanceY", 2, 2, 2, 1, 10.0))
sketch14.addConstraint(Sketcher.Constraint("DistanceX", 0, 3, -1, 1, 88.0))
sketch14.addConstraint(Sketcher.Constraint("DistanceX", 1, 2, -1, 1, 68.0))
pad5 = body2.newObject("PartDesign::Pad", "Pad004")
pad5.Profile = sketch14
pad5.Type = "TwoLengths"
pad5.Length = 3
pad5.Length2 = 4
pad5.Reversed = True
doc.recompute()

chamfer = body2.newObject("PartDesign::Chamfer", "Chamfer")
chamfer.Base = (pad5, edges_at(pad5, [
    (-73.67, 7, 5),
    (-98, 7, 0),
    (-68, 7, 0),
    (-73.67, 7, -5),
]))
chamfer.Size = 1

doc.recompute()
